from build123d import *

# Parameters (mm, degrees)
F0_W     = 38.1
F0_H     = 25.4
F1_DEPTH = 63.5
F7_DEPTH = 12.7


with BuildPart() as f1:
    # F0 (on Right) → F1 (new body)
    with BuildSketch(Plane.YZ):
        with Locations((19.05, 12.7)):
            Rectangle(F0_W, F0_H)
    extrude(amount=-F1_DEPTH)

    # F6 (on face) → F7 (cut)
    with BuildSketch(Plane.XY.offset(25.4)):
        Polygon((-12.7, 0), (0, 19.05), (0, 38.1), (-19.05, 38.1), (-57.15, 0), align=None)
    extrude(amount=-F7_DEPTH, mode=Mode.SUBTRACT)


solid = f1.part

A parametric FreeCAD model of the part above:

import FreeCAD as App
import Part
import Sketcher
from FreeCAD import Vector
Q = App.Units.Quantity

doc = App.newDocument("Part")
body = doc.addObject("PartDesign::Body", "Body")

# Sketch on YZ plane
sketch1 = body.newObject("Sketcher::SketchObject", "Sketch")
sketch1.AttachmentSupport = (doc.getObject("YZ_Plane"), [""])
sketch1.MapMode = "FlatFace"
sketch1.addGeometry([
    Part.LineSegment(Vector(0, 25, 0), Vector(0, 0, 0)),
    Part.LineSegment(Vector(0, 0, 0), Vector(38, 0, 0)),
    Part.LineSegment(Vector(38, 0, 0), Vector(38, 25, 0)),
    Part.LineSegment(Vector(38, 25, 0), Vector(0, 25, 0)),
], False)
sketch1.addConstraint([
    Sketcher.Constraint("Coincident", 0, 2, 1, 1),
    Sketcher.Constraint("Coincident", 1, 2, 2, 1),
    Sketcher.Constraint("Coincident", 2, 2, 3, 1),
    Sketcher.Constraint("Coincident", 3, 2, 0, 1),
    Sketcher.Constraint("Vertical", 0),
    Sketcher.Constraint("Horizontal", 1),
    Sketcher.Constraint("Vertical", 2),
    Sketcher.Constraint("Horizontal", 3),
    Sketcher.Constraint("Coincident", 0, 2, -1, 1),
    Sketcher.Constraint("DistanceY", 0, 2, 0, 1, Q("1 in")),
    Sketcher.Constraint("DistanceX", 1, 1, 1, 2, Q("1.5 in")),
])
pad1 = body.newObject("PartDesign::Pad", "Pad")
pad1.Profile = sketch1
pad1.Length = Q("2.5 in")
pad1.Reversed = True

# Sketch on XY plane
sketch2 = body.newObject("Sketcher::SketchObject", "Sketch001")
sketch2.AttachmentSupport = (doc.getObject("XY_Plane"), [""])
sketch2.MapMode = "FlatFace"
sketch2.AttachmentOffset = App.Placement(Vector(0, 0, 1 * 25.4), App.Rotation())
sketch2.addGeometry([
    Part.LineSegment(Vector(-13, 0, 0), Vector(0, 19, 0)),  # 0
    Part.LineSegment(Vector(0, 19, 0), Vector(0, 38, 0)),  # 1
    Part.LineSegment(Vector(0, 38, 0), Vector(-19, 38, 0)),  # 2
    Part.LineSegment(Vector(-19, 38, 0), Vector(-57, 0, 0)),  # 3
    Part.LineSegment(Vector(-57, 0, 0), Vector(-13, 0, 0)),  # 4
], False)
sketch2.addConstraint([
    Sketcher.Constraint("Coincident", 0, 2, 1, 1),
    Sketcher.Constraint("Coincident", 1, 2, 2, 1),
    Sketcher.Constraint("Coincident", 2, 2, 3, 1),
    Sketcher.Constraint("Coincident", 3, 2, 4, 1),
    Sketcher.Constraint("Coincident", 4, 2, 0, 1),
    Sketcher.Constraint("Vertical", 1),
    Sketcher.Constraint("Horizontal", 2),
    Sketcher.Constraint("Horizontal", 4),
    Sketcher.Constraint("PointOnObject", 0, 2, -2),
    Sketcher.Constraint("PointOnObject", 3, 2, -1),
    Sketcher.Constraint("Equal", 2, 1),
    Sketcher.Constraint("Angle", 3, Q("-135 deg")),
    Sketcher.Constraint("DistanceX", 2, 2, 2, 1, Q("0.75 in")),
    Sketcher.Constraint("DistanceX", 4, 1, 4, 2, Q("1.75 in")),
    Sketcher.Constraint("DistanceY", -1, 1, 1, 2, Q("1.5 in")),
])
pocket1 = body.newObject("PartDesign::Pocket", "Pocket")
pocket1.Profile = sketch2
pocket1.Length = Q("0.5 in")

doc.recompute()
